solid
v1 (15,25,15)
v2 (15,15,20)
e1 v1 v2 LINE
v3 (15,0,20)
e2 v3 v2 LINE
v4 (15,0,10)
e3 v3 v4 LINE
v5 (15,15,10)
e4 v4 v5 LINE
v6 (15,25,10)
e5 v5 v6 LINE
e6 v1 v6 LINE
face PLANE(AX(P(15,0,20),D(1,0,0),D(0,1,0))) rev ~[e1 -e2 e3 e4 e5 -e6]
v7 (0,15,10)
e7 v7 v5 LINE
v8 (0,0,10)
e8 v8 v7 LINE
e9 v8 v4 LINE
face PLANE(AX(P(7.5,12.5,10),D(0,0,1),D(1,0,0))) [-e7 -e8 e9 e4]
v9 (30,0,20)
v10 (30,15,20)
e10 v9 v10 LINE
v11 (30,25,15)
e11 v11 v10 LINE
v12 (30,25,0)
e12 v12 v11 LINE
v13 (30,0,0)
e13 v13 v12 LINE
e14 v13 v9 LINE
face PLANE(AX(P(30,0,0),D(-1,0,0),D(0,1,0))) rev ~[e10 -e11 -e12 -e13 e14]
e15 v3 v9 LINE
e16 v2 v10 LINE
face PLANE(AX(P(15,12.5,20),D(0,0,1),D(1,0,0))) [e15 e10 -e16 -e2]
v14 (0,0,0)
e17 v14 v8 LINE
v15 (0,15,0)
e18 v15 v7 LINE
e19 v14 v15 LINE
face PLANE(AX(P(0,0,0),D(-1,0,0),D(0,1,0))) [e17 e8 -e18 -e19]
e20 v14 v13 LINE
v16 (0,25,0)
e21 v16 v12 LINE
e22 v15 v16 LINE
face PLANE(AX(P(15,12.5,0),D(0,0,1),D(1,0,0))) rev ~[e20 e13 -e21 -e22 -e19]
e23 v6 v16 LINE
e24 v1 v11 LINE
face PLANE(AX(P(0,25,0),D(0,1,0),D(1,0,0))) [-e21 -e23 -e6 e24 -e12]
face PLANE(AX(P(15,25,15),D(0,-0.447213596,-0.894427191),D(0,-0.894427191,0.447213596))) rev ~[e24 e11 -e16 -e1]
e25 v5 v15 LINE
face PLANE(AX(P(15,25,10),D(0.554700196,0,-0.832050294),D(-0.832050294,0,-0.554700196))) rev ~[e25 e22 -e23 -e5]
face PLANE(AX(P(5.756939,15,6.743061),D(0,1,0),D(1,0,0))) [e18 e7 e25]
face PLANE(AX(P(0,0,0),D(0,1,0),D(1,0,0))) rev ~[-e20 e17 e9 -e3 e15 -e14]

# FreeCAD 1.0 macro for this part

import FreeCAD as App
import Part
import Sketcher
from FreeCAD import Vector

doc = App.newDocument("Part")
body = doc.addObject("PartDesign::Body", "Body")

# Sketch on XY plane
sketch1 = body.newObject("Sketcher::SketchObject", "Sketch")
sketch1.AttachmentSupport = (doc.getObject("XY_Plane"), [""])
sketch1.MapMode = "FlatFace"
sketch1.addGeometry(Part.LineSegment(Vector(0, 25, 0), Vector(0, 0, 0)), False)
sketch1.addGeometry(Part.LineSegment(Vector(0, 0, 0), Vector(30, 0, 0)), False)
sketch1.addGeometry(Part.LineSegment(Vector(30, 0, 0), Vector(30, 25, 0)), False)
sketch1.addGeometry(Part.LineSegment(Vector(30, 25, 0), Vector(0, 25, 0)), False)
sketch1.addConstraint(Sketcher.Constraint("Coincident", 0, 2, 1, 1))
sketch1.addConstraint(Sketcher.Constraint("Coincident", 1, 2, 2, 1))
sketch1.addConstraint(Sketcher.Constraint("Coincident", 2, 2, 3, 1))
sketch1.addConstraint(Sketcher.Constraint("Coincident", 3, 2, 0, 1))
sketch1.addConstraint(Sketcher.Constraint("Vertical", 0))
sketch1.addConstraint(Sketcher.Constraint("Horizontal", 1))
sketch1.addConstraint(Sketcher.Constraint("Vertical", 2))
sketch1.addConstraint(Sketcher.Constraint("Horizontal", 3))
sketch1.addConstraint(Sketcher.Constraint("Coincident", 0, 2, -1, 1))
sketch1.addConstraint(Sketcher.Constraint("DistanceX", 1, 1, 1, 2, 30.0))
sketch1.addConstraint(Sketcher.Constraint("DistanceY", 0, 2, 0, 1, 25.0))
pad1 = body.newObject("PartDesign::Pad", "Pad")
pad1.Profile = sketch1
pad1.Length = 20

# Sketch on XY plane
sketch2 = body.newObject("Sketcher::SketchObject", "Sketch001")
sketch2.AttachmentSupport = (doc.getObject("XY_Plane"), [""])
sketch2.MapMode = "FlatFace"
sketch2.AttachmentOffset = App.Placement(Vector(0, 0, 20), App.Rotation())
sketch2.addGeometry(Part.LineSegment(Vector(0, 25, 0), Vector(0, 0, 0)), False)
sketch2.addGeometry(Part.LineSegment(Vector(0, 0, 0), Vector(15, 0, 0)), False)
sketch2.addGeometry(Part.LineSegment(Vector(15, 0, 0), Vector(15, 25, 0)), False)
sketch2.addGeometry(Part.LineSegment(Vector(15, 25, 0), Vector(0, 25, 0)), False)
sketch2.addConstraint(Sketcher.Constraint("Coincident", 0, 2, 1, 1))
sketch2.addConstraint(Sketcher.Constraint("Coincident", 1, 2, 2, 1))
sketch2.addConstraint(Sketcher.Constraint("Coincident", 2, 2, 3, 1))
sketch2.addConstraint(Sketcher.Constraint("Coincident", 3, 2, 0, 1))
sketch2.addConstraint(Sketcher.Constraint("Vertical", 0))
sketch2.addConstraint(Sketcher.Constraint("Horizontal", 1))
sketch2.addConstraint(Sketcher.Constraint("Vertical", 2))
sketch2.addConstraint(Sketcher.Constraint("Horizontal", 3))
sketch2.addConstraint(Sketcher.Constraint("Coincident", 0, 2, -1, 1))
sketch2.addConstraint(Sketcher.Constraint("DistanceX", 1, 1, 1, 2, 15.0))
sketch2.addConstraint(Sketcher.Constraint("DistanceY", 0, 2, 0, 1, 25.0))
pocket1 = body.newObject("PartDesign::Pocket", "Pocket")
pocket1.Profile = sketch2
pocket1.Length = 10

# Sketch on YZ plane
sketch3 = body.newObject("Sketcher::SketchObject", "Sketch002")
sketch3.AttachmentSupport = (doc.getObject("YZ_Plane"), [""])
sketch3.MapMode = "FlatFace"
sketch3.AttachmentOffset = App.Placement(Vector(0, 0, 15), App.Rotation())
sketch3.addGeometry(Part.LineSegment(Vector(25, 15, 0), Vector(15, 20, 0)), False)
sketch3.addGeometry(Part.LineSegment(Vector(15, 20, 0), Vector(25, 20, 0)), False)
sketch3.addGeometry(Part.LineSegment(Vector(25, 20, 0), Vector(25, 15, 0)), False)
sketch3.addConstraint(Sketcher.Constraint("Coincident", 0, 2, 1, 1))
sketch3.addConstraint(Sketcher.Constraint("Coincident", 1, 2, 2, 1))
sketch3.addConstraint(Sketcher.Constraint("Coincident", 2, 2, 0, 1))
sketch3.addConstraint(Sketcher.Constraint("Horizontal", 1))
sketch3.addConstraint(Sketcher.Constraint("Vertical", 2))
sketch3.addConstraint(Sketcher.Constraint("DistanceX", 1, 1, 1, 2, 10.0))
sketch3.addConstraint(Sketcher.Constraint("DistanceY", 2, 2, 2, 1, 5.0))
sketch3.addConstraint(Sketcher.Constraint("DistanceX", -1, 1, 0, 2, 15.0))
sketch3.addConstraint(Sketcher.Constraint("DistanceY", -1, 1, 0, 2, 20.0))
pocket2 = body.newObject("PartDesign::Pocket", "Pocket001")
pocket2.Profile = sketch3
pocket2.Length = 20
pocket2.Reversed = True

# Sketch on XZ plane
sketch4 = body.newObject("Sketcher::SketchObject", "Sketch003")
sketch4.AttachmentSupport = (doc.getObject("XZ_Plane"), [""])
sketch4.MapMode = "FlatFace"
sketch4.AttachmentOffset = App.Placement(Vector(0, 0, -25), App.Rotation())
sketch4.addGeometry(Part.LineSegment(Vector(15, 10, 0), Vector(0, 0, 0)), False)
sketch4.addGeometry(Part.LineSegment(Vector(0, 0, 0), Vector(0, 10, 0)), False)
sketch4.addGeometry(Part.LineSegment(Vector(0, 10, 0), Vector(15, 10, 0)), False)
sketch4.addConstraint(Sketcher.Constraint("Coincident", 0, 2, 1, 1))
sketch4.addConstraint(Sketcher.Constraint("Coincident", 1, 2, 2, 1))
sketch4.addConstraint(Sketcher.Constraint("Coincident", 2, 2, 0, 1))
sketch4.addConstraint(Sketcher.Constraint("Vertical", 1))
sketch4.addConstraint(Sketcher.Constraint("Horizontal", 2))
sketch4.addConstraint(Sketcher.Constraint("Coincident", 0, 2, -1, 1))
sketch4.addConstraint(Sketcher.Constraint("DistanceX", 2, 1, 2, 2, 15.0))
sketch4.addConstraint(Sketcher.Constraint("DistanceY", 1, 1, 1, 2, 10.0))
pocket3 = body.newObject("PartDesign::Pocket", "Pocket002")
pocket3.Profile = sketch4
pocket3.Length = 10
pocket3.Reversed = True

doc.recompute()
